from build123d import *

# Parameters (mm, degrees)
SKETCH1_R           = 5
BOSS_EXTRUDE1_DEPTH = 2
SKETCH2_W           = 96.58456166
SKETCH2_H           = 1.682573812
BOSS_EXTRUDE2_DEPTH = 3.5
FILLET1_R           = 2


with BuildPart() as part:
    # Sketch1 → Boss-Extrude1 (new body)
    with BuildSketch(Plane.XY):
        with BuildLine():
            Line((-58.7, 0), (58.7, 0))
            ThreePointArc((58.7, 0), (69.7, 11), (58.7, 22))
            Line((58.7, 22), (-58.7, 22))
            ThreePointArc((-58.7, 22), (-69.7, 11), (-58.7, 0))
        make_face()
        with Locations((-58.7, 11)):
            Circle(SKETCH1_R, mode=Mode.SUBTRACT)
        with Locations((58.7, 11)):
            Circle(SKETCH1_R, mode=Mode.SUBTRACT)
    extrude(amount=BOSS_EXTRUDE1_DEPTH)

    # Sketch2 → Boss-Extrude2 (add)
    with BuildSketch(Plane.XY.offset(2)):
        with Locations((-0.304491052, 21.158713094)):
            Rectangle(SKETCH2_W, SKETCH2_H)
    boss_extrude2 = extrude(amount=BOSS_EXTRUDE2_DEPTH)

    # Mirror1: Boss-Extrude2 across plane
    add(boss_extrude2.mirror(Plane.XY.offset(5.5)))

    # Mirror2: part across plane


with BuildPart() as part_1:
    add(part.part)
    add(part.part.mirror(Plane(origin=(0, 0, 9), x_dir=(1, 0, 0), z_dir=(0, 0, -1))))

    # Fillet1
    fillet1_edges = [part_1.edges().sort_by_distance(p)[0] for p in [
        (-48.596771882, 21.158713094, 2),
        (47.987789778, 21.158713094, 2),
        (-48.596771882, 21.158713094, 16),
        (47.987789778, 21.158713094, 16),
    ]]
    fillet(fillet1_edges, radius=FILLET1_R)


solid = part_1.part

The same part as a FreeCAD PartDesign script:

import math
import FreeCAD as App
import Part
import Sketcher
from FreeCAD import Vector


def edges_at(feature, points):
    """Names of the edges that pass closest to the given points."""
    edges = feature.Shape.Edges
    near = lambda p: min(range(len(edges)), key=lambda i: edges[i].distToShape(Part.Vertex(*p))[0])
    return sorted({f"Edge{near(p) + 1}" for p in points})


def add_polygon(sketch, points):
    """Adds a closed chain of lines whose ends are joined by coincident constraints."""
    first, n = sketch.GeometryCount, len(points)
    for a, b in zip(points, points[1:] + points[:1]):
        sketch.addGeometry(Part.LineSegment(App.Vector(*a, 0), App.Vector(*b, 0)), False)
    for i in range(n):
        sketch.addConstraint(Sketcher.Constraint("Coincident", first + i, 2, first + (i + 1) % n, 1))

doc = App.newDocument("Part")
body = doc.addObject("PartDesign::Body", "Body")

sketch1 = body.newObject("Sketcher::SketchObject", "Sketch")
sketch1.AttachmentSupport = (doc.getObject("XY_Plane"), [""])
sketch1.MapMode = "FlatFace"
sketch1.addGeometry(Part.LineSegment(Vector(-59, 0, 0), Vector(59, 0, 0)), False)
sketch1.addGeometry(Part.ArcOfCircle(Part.Circle(Vector(59, 11, 0), Vector(0, 0, 1), 11), math.radians(-90), math.radians(90)), False)
sketch1.addGeometry(Part.LineSegment(Vector(59, 22, 0), Vector(-59, 22, 0)), False)
sketch1.addGeometry(Part.ArcOfCircle(Part.Circle(Vector(-59, 11, 0), Vector(0, 0, 1), 11), math.radians(90), math.radians(270)), False)
sketch1.addGeometry(Part.Circle(Vector(-59, 11, 0), Vector(0, 0, 1), 5), False)
sketch1.addGeometry(Part.Circle(Vector(59, 11, 0), Vector(0, 0, 1), 5), False)
sketch1.addConstraint(Sketcher.Constraint("Tangent", 0, 2, 1, 1))
sketch1.addConstraint(Sketcher.Constraint("Tangent", 1, 2, 2, 1))
sketch1.addConstraint(Sketcher.Constraint("Tangent", 2, 2, 3, 1))
sketch1.addConstraint(Sketcher.Constraint("Tangent", 3, 2, 0, 1))
sketch1.addConstraint(Sketcher.Constraint("Horizontal", 0))
sketch1.addConstraint(Sketcher.Constraint("Horizontal", 2))
sketch1.addConstraint(Sketcher.Constraint("Coincident", 4, 3, 3, 3))
sketch1.addConstraint(Sketcher.Constraint("Coincident", 5, 3, 1, 3))
sketch1.addConstraint(Sketcher.Constraint("Equal", 4, 5))
sketch1.addConstraint(Sketcher.Constraint("Symmetric", 0, 2, 3, 2, -1, 1))
sketch1.addConstraint(Sketcher.Constraint("Diameter", 4, 10.0))
sketch1.addConstraint(Sketcher.Constraint("Radius", 1, 11.0))
sketch1.addConstraint(Sketcher.Constraint("DistanceX", 0, 1, 0, 2, 117.4))
pad1 = body.newObject("PartDesign::Pad", "Pad")
pad1.Profile = sketch1
pad1.Length = 2

sketch2 = body.newObject("Sketcher::SketchObject", "Sketch001")
sketch2.AttachmentSupport = (doc.getObject("XY_Plane"), [""])
sketch2.MapMode = "FlatFace"
sketch2.AttachmentOffset = App.Placement(Vector(0, 0, 2), App.Rotation())
add_polygon(sketch2, [(-48.6, 22), (-48.6, 20.3), (48, 20.3), (48, 22)])
sketch2.addConstraint(Sketcher.Constraint("Vertical", 0))
sketch2.addConstraint(Sketcher.Constraint("Horizontal", 1))
sketch2.addConstraint(Sketcher.Constraint("Vertical", 2))
sketch2.addConstraint(Sketcher.Constraint("Horizontal", 3))
sketch2.addConstraint(Sketcher.Constraint("DistanceY", -1, 1, 2, 2, 22.0))
sketch2.addConstraint(Sketcher.Constraint("DistanceX", 1, 1, 1, 2, 96.584562))
sketch2.addConstraint(Sketcher.Constraint("DistanceY", 0, 2, 0, 1, 1.682574))
sketch2.addConstraint(Sketcher.Constraint("DistanceX", 0, 2, -1, 1, 48.596772))
pad2 = body.newObject("PartDesign::Pad", "Pad001")
pad2.Profile = sketch2
pad2.Length = 3.5
doc.recompute()

datumplane = body.newObject("PartDesign::Plane", "DatumPlane")
datumplane.AttachmentSupport = (doc.getObject("XY_Plane"), [""])
datumplane.MapMode = "FlatFace"
datumplane.AttachmentOffset = App.Placement(Vector(0, 0, 5.5), App.Rotation())
mirrored = body.newObject("PartDesign::Mirrored", "Mirrored")
mirrored.Originals = [pad2]
mirrored.MirrorPlane = (datumplane, [""])
body.Tip = mirrored
body2 = doc.addObject("PartDesign::Body", "Body001")
doc.recompute()

body2.BaseFeature = body
doc.recompute()

mirroring = doc.addObject("Part::Mirroring", "Mirroring")
mirroring.Source = body
mirroring.Base = Vector(0, 0, 9)
mirroring.Normal = Vector(0, 0, -1)
body3 = doc.addObject("PartDesign::Body", "Body002")
body3.BaseFeature = mirroring
boolean = body2.newObject("PartDesign::Boolean", "Boolean")
boolean.Type = "Fuse"
boolean.addObjects([body3])
doc.recompute()

fillet = body2.newObject("PartDesign::Fillet", "Fillet")
fillet.Base = (boolean, edges_at(boolean, [
    (-48.597, 21.159, 2),
    (47.988, 21.159, 2),
    (-48.597, 21.159, 16),
    (47.988, 21.159, 16),
]))
fillet.Radius = 2
mirroring.Visibility = False

doc.recompute()
